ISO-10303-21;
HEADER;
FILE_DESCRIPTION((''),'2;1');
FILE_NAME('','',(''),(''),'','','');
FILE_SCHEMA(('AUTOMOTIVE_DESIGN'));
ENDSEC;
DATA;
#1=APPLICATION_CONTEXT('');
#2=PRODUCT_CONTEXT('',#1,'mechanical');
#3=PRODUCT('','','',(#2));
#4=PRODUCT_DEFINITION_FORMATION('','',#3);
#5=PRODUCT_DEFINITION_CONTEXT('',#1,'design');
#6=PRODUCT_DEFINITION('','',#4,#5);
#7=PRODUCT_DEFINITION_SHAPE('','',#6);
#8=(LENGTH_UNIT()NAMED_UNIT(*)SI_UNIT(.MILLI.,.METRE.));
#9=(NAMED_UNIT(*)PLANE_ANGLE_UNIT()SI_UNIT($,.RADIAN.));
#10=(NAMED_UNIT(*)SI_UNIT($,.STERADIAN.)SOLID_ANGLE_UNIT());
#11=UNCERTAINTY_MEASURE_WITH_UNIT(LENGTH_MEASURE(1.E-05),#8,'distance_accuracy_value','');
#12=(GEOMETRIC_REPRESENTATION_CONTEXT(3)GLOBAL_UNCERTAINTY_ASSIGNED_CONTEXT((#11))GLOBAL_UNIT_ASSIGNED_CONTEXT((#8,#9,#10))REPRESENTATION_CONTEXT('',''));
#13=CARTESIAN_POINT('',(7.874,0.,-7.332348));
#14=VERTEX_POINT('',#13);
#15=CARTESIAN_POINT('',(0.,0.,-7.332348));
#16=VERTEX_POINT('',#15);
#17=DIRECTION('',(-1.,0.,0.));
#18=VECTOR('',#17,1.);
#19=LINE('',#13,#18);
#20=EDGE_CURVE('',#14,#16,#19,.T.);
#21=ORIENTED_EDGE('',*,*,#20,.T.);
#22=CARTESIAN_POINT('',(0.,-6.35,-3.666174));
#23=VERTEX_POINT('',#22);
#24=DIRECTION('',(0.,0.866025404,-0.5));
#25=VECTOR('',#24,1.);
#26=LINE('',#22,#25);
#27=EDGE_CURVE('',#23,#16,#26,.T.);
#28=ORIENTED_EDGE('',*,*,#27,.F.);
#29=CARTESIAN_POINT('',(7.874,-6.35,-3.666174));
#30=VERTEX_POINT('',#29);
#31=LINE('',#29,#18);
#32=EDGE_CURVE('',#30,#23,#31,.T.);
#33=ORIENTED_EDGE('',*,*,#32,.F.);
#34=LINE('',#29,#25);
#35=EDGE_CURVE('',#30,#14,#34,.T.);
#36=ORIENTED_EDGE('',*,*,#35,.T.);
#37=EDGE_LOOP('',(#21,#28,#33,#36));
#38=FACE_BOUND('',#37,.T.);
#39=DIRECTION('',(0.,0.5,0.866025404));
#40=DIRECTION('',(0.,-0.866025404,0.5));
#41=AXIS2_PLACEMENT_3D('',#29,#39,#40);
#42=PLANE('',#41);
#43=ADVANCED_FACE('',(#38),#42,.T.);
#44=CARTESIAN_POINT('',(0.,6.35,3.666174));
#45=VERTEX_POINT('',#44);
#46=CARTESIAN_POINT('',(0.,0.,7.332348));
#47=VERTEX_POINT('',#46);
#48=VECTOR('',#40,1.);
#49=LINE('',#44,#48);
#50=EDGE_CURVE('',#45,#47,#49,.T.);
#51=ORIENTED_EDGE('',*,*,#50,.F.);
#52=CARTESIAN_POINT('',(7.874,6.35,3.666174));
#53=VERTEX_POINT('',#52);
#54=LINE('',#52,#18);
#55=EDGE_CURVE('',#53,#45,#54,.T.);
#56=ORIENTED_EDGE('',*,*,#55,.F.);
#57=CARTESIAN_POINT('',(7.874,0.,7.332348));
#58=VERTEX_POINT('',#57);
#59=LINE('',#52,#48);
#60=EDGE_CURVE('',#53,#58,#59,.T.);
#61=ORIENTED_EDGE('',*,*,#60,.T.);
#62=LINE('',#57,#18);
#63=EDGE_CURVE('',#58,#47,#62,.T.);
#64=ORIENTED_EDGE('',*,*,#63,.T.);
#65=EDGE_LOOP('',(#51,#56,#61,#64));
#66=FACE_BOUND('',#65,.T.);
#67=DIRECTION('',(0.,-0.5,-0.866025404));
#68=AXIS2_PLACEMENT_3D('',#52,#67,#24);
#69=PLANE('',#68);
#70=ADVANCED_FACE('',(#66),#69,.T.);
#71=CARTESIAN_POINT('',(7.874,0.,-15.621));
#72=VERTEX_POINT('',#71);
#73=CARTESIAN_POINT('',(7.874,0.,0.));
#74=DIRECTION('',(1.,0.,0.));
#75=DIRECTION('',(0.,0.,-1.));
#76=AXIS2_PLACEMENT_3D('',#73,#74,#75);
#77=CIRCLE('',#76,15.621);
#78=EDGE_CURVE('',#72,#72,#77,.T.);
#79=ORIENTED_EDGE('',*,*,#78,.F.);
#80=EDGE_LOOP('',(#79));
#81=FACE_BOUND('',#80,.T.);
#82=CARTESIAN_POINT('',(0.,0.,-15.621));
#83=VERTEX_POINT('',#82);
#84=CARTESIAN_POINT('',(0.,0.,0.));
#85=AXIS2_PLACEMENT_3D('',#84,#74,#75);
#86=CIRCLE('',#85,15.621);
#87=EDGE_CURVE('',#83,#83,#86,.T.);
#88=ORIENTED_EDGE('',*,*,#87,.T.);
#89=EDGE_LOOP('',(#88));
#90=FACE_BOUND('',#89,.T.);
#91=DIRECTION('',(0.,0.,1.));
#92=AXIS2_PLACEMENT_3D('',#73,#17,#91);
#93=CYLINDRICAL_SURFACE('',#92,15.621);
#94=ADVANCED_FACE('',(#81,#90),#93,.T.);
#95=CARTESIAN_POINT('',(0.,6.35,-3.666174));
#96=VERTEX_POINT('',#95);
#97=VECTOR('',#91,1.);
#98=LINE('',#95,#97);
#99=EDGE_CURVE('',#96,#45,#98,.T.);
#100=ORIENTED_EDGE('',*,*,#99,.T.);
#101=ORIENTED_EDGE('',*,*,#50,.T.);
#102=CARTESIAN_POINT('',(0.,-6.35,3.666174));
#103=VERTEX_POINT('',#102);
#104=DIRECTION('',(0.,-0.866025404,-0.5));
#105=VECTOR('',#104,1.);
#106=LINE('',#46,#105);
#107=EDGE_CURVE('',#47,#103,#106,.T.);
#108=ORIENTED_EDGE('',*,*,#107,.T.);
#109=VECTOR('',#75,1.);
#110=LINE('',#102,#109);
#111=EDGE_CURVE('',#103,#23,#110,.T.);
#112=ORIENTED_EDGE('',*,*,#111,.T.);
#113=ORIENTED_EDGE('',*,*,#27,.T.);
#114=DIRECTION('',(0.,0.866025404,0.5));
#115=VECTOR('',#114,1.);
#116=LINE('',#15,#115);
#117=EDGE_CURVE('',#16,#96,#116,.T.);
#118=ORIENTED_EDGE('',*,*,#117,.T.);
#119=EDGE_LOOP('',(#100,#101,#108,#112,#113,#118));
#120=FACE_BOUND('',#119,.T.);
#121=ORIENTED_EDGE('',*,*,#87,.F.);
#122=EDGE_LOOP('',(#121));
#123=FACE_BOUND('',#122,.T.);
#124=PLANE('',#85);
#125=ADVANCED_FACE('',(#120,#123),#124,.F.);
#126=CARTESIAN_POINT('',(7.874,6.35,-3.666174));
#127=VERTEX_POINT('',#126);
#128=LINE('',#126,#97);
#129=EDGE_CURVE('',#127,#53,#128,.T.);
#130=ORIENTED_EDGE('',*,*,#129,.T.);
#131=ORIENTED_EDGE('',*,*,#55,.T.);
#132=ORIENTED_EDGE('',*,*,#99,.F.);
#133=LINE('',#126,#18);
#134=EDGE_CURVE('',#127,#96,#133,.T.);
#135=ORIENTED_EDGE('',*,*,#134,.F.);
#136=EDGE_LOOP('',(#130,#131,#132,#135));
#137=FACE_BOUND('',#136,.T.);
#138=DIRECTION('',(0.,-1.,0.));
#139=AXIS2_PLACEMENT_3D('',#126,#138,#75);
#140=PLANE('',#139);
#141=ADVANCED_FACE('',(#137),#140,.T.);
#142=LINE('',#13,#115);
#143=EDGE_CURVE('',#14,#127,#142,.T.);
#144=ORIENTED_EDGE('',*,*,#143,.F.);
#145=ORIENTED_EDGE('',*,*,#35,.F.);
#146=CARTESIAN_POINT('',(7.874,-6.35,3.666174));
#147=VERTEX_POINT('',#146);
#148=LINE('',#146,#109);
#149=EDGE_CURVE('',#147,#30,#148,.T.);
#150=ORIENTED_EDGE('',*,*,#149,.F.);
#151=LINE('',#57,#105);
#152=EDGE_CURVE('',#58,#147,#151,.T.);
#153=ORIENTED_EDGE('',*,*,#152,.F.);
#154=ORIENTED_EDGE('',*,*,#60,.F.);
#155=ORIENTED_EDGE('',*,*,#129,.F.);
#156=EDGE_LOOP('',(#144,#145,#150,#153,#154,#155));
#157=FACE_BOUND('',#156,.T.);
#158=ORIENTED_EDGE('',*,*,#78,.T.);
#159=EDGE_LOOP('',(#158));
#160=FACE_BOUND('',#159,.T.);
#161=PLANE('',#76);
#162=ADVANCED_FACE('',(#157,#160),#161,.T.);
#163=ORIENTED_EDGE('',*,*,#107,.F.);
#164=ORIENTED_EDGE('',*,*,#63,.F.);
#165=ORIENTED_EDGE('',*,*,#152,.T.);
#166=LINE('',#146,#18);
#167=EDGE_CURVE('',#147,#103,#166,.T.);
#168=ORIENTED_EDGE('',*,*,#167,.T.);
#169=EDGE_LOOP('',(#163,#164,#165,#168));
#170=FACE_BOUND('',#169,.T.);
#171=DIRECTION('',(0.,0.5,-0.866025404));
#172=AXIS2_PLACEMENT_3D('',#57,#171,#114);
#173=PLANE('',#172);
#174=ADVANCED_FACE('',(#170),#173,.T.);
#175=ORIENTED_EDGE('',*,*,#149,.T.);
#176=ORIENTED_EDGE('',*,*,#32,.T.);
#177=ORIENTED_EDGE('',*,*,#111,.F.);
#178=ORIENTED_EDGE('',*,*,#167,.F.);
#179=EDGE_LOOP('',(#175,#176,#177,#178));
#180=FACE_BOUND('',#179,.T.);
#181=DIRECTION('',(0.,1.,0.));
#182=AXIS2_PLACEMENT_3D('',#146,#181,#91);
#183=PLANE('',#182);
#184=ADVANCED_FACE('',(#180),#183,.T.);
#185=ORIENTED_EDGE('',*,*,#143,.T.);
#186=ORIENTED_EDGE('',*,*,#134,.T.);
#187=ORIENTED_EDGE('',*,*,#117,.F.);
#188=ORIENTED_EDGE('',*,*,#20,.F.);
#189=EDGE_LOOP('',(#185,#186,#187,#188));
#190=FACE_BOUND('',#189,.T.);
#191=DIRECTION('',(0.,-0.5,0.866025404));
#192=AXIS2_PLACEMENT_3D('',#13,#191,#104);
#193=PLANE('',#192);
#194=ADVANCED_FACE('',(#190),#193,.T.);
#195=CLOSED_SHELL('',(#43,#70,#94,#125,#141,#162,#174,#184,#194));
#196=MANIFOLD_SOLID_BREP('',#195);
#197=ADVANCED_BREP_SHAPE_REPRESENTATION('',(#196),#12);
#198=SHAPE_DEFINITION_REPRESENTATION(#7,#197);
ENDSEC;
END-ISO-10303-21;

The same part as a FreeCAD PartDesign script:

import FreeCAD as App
import Part
import Sketcher

V = App.Vector
Q = App.Units.Quantity


def add_polygon(sketch, points):
    """Adds a closed chain of lines whose ends are joined by coincident constraints."""
    first, n = sketch.GeometryCount, len(points)
    for a, b in zip(points, points[1:] + points[:1]):
        sketch.addGeometry(Part.LineSegment(App.Vector(*a, 0), App.Vector(*b, 0)), False)
    for i in range(n):
        sketch.addConstraint(Sketcher.Constraint("Coincident", first + i, 2, first + (i + 1) % n, 1))

doc = App.newDocument("Part")
body = doc.addObject("PartDesign::Body", "Body")

# Sketch on YZ plane
sketch1 = doc.addObject("Sketcher::SketchObject", "Sketch")
body.addObject(sketch1)
sketch1.AttachmentSupport = (doc.YZ_Plane, [""])
sketch1.MapMode = "FlatFace"
sketch1.addGeometry(Part.Circle(V(0, 0, 0), V(0, 0, 1), 15.621), False)  # 0
add_polygon(sketch1, [(6.35, 3.666174), (6.35, -3.666174), (0, -7.332348), (-6.35, -3.666174), (-6.35, 3.666174), (0, 7.332348)])  # lines 1-6
sketch1.addConstraint(Sketcher.Constraint("Vertical", 1))
sketch1.addConstraint(Sketcher.Constraint("Vertical", 4))
sketch1.addConstraint(Sketcher.Constraint("Coincident", 0, 3, -1, 1))
sketch1.addConstraint(Sketcher.Constraint("Symmetric", 1, 2, 4, 2, -1, 1))
sketch1.addConstraint(Sketcher.Constraint("Symmetric", 2, 2, 5, 2, -1, 1))
sketch1.addConstraint(Sketcher.Constraint("PointOnObject", 2, 2, -2))
sketch1.addConstraint(Sketcher.Constraint("Parallel", 3, 6))
sketch1.addConstraint(Sketcher.Constraint("Horizontal", 1, 2, 3, 2))
sketch1.addConstraint(Sketcher.Constraint("Diameter", 0, Q("1.23 in")))
sketch1.addConstraint(Sketcher.Constraint("Angle", 2, Q("-150 deg")))
sketch1.addConstraint(Sketcher.Constraint("DistanceX", 3, 2, 1, 2, Q("0.5 in")))
sketch1.addConstraint(Sketcher.Constraint("DistanceY", 1, 2, 1, 1, Q("7.332348 mm")))
pad1 = doc.addObject("PartDesign::Pad", "Pad")
body.addObject(pad1)
pad1.Profile = sketch1
pad1.Length = Q("0.31 in")

doc.recompute()
